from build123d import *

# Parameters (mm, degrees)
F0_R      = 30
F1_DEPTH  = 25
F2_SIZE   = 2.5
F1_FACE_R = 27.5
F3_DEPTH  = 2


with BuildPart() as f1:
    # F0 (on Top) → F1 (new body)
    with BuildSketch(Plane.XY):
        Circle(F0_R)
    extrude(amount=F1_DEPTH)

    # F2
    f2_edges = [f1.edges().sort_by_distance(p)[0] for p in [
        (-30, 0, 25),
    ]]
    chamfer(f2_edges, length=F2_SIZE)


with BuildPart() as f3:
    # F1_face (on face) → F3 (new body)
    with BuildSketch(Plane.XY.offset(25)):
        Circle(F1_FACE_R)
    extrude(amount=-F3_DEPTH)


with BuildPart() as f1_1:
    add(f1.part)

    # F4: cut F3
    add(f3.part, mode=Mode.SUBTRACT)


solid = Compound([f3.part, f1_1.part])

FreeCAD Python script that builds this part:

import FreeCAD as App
import Part
import Sketcher


def edges_at(feature, points):
    """Names of the edges that pass closest to the given points."""
    edges = feature.Shape.Edges
    near = lambda p: min(range(len(edges)), key=lambda i: edges[i].distToShape(Part.Vertex(*p))[0])
    return sorted({f"Edge{near(p) + 1}" for p in points})

doc = App.newDocument("Part")
body = doc.addObject("PartDesign::Body", "Body")

# Sketch on XY plane
sketch1 = body.newObject("Sketcher::SketchObject", "Sketch")
sketch1.AttachmentSupport = (doc.getObject("XY_Plane"), [""])
sketch1.MapMode = "FlatFace"
sketch1.addGeometry(Part.Circle(App.Vector(0, 0, 0), App.Vector(0, 0, 1), 30), False)
sketch1.addConstraint(Sketcher.Constraint("Coincident", 0, 3, -1, 1))
sketch1.addConstraint(Sketcher.Constraint("Diameter", 0, 60.0))
pad1 = body.newObject("PartDesign::Pad", "Pad")
pad1.Profile = sketch1
pad1.Length = 25
doc.recompute()

chamfer = body.newObject("PartDesign::Chamfer", "Chamfer")
chamfer.Base = (pad1, edges_at(pad1, [(-30, 0, 25)]))
chamfer.Size = 2.5
body2 = doc.addObject("PartDesign::Body", "Body001")

# Sketch on XY plane
sketch2 = body2.newObject("Sketcher::SketchObject", "Sketch001")
sketch2.AttachmentSupport = (doc.getObject("XY_Plane001"), [""])
sketch2.MapMode = "FlatFace"
sketch2.AttachmentOffset = App.Placement(App.Vector(0, 0, 25), App.Rotation())
sketch2.addGeometry(Part.Circle(App.Vector(0, 0, 0), App.Vector(0, 0, 1), 28), False)
sketch2.addConstraint(Sketcher.Constraint("Coincident", 0, 3, -1, 1))
sketch2.addConstraint(Sketcher.Constraint("Diameter", 0, 55.0))
pad2 = body2.newObject("PartDesign::Pad", "Pad001")
pad2.Profile = sketch2
pad2.Length = 2
pad2.Reversed = True
doc.recompute()

body3 = doc.addObject("PartDesign::Body", "Body002")
body3.BaseFeature = body2
boolean = body.newObject("PartDesign::Boolean", "Boolean")
boolean.Type = "Cut"
boolean.addObjects([body3])
doc.recompute()

doc.recompute()
